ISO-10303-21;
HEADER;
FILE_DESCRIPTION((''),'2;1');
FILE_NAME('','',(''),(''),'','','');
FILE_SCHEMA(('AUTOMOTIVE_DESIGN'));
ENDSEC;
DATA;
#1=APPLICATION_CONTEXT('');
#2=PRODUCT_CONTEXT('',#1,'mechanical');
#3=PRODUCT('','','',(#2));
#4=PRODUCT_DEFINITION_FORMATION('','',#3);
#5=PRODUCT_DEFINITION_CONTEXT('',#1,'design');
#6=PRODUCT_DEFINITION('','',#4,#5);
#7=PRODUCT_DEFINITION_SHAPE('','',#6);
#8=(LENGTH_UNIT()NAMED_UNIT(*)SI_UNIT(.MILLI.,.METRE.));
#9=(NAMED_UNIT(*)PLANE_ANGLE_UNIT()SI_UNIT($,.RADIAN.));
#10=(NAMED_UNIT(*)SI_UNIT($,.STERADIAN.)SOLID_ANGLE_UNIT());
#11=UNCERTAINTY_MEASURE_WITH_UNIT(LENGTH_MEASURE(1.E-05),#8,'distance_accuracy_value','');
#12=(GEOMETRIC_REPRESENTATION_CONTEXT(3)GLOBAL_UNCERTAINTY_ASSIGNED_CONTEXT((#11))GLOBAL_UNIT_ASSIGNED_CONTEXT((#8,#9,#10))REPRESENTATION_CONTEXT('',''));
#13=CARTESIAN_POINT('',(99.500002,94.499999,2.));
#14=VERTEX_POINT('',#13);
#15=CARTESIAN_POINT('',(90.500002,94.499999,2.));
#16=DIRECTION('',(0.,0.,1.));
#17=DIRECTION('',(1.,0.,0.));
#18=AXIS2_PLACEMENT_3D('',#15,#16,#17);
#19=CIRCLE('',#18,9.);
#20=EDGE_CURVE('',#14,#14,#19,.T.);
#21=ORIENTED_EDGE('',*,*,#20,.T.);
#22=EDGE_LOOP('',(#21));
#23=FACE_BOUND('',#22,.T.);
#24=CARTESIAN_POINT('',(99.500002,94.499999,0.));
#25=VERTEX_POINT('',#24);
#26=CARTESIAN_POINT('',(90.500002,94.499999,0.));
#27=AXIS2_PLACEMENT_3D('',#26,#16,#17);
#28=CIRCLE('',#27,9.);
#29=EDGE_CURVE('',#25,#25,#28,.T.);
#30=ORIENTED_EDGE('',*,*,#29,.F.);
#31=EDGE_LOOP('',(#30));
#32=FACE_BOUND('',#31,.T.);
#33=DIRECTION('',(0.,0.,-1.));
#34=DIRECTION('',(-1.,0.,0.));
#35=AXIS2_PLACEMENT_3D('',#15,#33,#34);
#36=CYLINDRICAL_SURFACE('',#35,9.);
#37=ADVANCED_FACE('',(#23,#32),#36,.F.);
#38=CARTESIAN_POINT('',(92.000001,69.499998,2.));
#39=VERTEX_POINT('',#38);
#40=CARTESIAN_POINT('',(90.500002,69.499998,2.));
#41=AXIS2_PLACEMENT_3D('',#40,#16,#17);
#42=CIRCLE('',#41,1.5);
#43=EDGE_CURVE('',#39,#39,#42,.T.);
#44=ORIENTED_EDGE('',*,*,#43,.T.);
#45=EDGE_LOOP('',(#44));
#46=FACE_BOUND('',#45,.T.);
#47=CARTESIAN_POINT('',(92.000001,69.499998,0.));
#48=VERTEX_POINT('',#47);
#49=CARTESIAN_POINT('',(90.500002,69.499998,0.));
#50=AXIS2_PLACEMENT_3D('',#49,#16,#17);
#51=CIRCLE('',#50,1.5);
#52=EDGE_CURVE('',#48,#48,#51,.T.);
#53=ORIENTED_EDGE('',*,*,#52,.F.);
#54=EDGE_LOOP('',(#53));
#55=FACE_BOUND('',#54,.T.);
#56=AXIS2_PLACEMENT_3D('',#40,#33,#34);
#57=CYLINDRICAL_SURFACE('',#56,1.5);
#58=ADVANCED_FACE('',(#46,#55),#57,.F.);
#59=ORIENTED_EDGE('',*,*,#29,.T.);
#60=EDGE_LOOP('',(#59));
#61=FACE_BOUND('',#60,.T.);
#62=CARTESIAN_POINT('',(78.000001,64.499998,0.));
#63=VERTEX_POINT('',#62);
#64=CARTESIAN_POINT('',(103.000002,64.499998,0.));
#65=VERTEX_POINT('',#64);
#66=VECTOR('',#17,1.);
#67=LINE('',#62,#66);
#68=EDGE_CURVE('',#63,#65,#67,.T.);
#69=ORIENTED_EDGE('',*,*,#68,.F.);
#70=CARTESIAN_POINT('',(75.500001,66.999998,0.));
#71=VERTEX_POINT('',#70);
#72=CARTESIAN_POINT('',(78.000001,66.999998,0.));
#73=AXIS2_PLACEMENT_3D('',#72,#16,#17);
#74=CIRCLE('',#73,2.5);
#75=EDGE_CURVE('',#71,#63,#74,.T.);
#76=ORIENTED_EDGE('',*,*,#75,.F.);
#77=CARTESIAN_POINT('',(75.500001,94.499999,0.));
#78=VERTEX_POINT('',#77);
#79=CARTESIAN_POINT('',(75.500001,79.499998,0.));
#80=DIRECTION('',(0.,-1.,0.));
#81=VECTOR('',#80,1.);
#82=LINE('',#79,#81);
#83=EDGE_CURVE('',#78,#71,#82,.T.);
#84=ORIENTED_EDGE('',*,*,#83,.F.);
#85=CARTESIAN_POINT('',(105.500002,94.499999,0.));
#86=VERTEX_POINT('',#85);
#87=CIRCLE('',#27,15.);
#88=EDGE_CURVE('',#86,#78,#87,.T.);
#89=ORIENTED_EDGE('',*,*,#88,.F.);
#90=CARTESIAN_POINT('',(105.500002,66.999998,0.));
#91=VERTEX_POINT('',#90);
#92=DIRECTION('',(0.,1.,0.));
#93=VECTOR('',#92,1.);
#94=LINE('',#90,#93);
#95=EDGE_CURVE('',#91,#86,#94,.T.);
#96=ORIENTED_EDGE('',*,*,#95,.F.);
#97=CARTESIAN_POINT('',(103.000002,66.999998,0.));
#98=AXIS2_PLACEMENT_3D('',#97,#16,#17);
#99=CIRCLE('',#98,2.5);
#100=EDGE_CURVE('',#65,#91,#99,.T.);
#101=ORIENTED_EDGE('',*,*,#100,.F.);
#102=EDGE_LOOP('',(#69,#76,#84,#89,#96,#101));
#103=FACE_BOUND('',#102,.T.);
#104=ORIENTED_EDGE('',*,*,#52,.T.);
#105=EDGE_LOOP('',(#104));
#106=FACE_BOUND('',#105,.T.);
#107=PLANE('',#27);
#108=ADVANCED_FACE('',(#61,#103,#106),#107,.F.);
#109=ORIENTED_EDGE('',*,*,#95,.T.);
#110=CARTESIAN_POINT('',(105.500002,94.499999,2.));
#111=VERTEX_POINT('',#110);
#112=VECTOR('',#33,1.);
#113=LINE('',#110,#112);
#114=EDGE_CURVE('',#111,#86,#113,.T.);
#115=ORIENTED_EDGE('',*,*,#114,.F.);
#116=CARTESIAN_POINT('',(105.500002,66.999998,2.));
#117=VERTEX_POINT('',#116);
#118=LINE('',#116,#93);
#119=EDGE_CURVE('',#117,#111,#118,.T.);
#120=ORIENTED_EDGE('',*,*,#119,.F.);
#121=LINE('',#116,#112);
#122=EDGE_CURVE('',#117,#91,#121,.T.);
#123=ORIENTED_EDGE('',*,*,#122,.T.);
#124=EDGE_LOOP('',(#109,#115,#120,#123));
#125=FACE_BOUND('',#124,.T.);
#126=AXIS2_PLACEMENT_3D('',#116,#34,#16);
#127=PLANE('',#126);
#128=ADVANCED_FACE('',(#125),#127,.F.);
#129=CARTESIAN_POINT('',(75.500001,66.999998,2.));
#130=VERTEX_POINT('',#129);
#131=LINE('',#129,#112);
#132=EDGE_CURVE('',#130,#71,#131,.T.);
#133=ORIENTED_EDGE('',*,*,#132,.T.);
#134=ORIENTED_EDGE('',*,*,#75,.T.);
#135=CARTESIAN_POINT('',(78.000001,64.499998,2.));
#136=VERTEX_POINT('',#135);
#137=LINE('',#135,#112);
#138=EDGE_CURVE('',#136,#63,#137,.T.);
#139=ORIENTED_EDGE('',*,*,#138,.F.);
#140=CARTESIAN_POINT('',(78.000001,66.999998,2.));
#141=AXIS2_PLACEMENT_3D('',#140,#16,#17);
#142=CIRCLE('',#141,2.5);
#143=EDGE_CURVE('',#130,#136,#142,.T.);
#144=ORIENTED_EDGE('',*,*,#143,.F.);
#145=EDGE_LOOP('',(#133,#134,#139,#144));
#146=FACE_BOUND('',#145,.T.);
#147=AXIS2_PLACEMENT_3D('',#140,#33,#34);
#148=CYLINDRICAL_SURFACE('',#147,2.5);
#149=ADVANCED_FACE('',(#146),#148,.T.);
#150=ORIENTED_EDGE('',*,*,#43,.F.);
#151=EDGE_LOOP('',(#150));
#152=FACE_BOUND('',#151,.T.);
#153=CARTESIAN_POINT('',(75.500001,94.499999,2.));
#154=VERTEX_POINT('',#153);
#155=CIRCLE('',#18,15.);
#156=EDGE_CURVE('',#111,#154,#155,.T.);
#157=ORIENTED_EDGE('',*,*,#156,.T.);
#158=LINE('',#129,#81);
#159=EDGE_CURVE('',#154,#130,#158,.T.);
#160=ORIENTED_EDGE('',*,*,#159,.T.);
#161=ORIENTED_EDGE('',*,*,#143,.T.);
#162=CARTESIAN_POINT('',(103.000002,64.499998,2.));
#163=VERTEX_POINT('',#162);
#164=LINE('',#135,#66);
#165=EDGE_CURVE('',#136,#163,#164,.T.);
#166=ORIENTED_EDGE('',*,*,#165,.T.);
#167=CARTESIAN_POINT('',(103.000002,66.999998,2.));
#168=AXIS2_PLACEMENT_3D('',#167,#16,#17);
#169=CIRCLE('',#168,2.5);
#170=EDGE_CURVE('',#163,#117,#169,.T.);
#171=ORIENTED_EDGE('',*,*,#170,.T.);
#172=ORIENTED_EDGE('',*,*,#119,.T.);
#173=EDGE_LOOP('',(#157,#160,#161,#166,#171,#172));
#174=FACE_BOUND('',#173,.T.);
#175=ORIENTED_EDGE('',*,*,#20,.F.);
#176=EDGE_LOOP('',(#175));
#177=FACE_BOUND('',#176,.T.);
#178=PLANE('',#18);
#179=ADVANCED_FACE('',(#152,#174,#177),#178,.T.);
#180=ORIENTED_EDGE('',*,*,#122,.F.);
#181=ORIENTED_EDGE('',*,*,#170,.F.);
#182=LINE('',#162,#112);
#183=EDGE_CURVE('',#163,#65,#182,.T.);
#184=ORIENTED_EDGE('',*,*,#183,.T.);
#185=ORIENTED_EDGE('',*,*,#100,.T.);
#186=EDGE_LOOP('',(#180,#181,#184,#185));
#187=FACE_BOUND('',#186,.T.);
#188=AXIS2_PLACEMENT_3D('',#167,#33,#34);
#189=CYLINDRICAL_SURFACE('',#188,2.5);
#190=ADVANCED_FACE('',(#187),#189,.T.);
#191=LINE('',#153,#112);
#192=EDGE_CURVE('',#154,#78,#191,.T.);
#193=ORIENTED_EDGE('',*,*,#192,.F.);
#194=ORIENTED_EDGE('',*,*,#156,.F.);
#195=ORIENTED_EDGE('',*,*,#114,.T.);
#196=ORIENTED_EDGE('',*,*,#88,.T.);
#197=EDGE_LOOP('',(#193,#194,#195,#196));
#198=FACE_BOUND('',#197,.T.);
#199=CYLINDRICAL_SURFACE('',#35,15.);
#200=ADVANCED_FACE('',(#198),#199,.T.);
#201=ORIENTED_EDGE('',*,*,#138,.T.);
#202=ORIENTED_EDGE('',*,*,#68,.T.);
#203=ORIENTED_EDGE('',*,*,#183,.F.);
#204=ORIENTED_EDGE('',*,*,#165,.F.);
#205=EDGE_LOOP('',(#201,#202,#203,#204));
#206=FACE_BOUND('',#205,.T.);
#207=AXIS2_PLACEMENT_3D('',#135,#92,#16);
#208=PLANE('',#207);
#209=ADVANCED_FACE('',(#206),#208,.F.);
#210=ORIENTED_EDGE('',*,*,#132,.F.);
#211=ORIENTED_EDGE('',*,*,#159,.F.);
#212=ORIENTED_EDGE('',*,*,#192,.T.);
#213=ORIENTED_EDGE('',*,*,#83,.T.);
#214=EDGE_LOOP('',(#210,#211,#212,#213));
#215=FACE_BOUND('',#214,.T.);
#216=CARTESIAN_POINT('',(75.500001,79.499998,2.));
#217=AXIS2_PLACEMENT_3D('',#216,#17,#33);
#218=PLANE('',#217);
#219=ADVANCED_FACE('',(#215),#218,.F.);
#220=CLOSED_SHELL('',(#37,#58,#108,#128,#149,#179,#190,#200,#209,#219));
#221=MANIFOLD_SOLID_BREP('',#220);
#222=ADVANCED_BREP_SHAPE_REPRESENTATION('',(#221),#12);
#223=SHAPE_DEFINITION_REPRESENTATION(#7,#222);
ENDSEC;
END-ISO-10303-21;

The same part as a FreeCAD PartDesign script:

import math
import FreeCAD as App
import Part
import Sketcher

V = App.Vector

doc = App.newDocument("Part")
body = doc.addObject("PartDesign::Body", "Body")

# Sketch on XY plane
sketch1 = doc.addObject("Sketcher::SketchObject", "Sketch")
body.addObject(sketch1)
sketch1.AttachmentSupport = (doc.XY_Plane, [""])
sketch1.MapMode = "FlatFace"
sketch1.addGeometry(Part.ArcOfCircle(Part.Circle(V(90.5, 94.5, 0), V(0, 0, 1), 15), math.radians(0), math.radians(180)), False)
sketch1.addGeometry(Part.LineSegment(V(75.5, 94.5, 0), V(75.5, 67, 0)), False)
sketch1.addGeometry(Part.ArcOfCircle(Part.Circle(V(78, 67, 0), V(0, 0, 1), 2.5), math.radians(180), math.radians(270)), False)
sketch1.addGeometry(Part.LineSegment(V(78, 64.5, 0), V(103, 64.5, 0)), False)
sketch1.addGeometry(Part.ArcOfCircle(Part.Circle(V(103, 67, 0), V(0, 0, 1), 2.5), math.radians(-90), math.radians(0)), False)
sketch1.addGeometry(Part.LineSegment(V(105.5, 67, 0), V(105.5, 94.5, 0)), False)
sketch1.addGeometry(Part.Circle(V(90.5, 69.5, 0), V(0, 0, 1), 1.5), False)
sketch1.addGeometry(Part.Circle(V(90.5, 94.5, 0), V(0, 0, 1), 9), False)
sketch1.addConstraint(Sketcher.Constraint("Tangent", 0, 2, 1, 1))
sketch1.addConstraint(Sketcher.Constraint("Tangent", 1, 2, 2, 1))
sketch1.addConstraint(Sketcher.Constraint("Tangent", 2, 2, 3, 1))
sketch1.addConstraint(Sketcher.Constraint("Tangent", 3, 2, 4, 1))
sketch1.addConstraint(Sketcher.Constraint("Tangent", 4, 2, 5, 1))
sketch1.addConstraint(Sketcher.Constraint("Tangent", 5, 2, 0, 1))
sketch1.addConstraint(Sketcher.Constraint("Vertical", 1))
sketch1.addConstraint(Sketcher.Constraint("Horizontal", 3))
sketch1.addConstraint(Sketcher.Constraint("Vertical", 5))
sketch1.addConstraint(Sketcher.Constraint("Coincident", 7, 3, 0, 3))
sketch1.addConstraint(Sketcher.Constraint("Equal", 2, 4))
sketch1.addConstraint(Sketcher.Constraint("Vertical", 0, 3, 6, 3))
sketch1.addConstraint(Sketcher.Constraint("Diameter", 6, 2.999999))
sketch1.addConstraint(Sketcher.Constraint("Diameter", 7, 18.0))
sketch1.addConstraint(Sketcher.Constraint("Radius", 0, 15.0))
sketch1.addConstraint(Sketcher.Constraint("Radius", 2, 2.5))
sketch1.addConstraint(Sketcher.Constraint("DistanceY", 1, 2, 1, 1, 27.500001))
sketch1.addConstraint(Sketcher.Constraint("DistanceX", -1, 1, 2, 3, 78.000001))
sketch1.addConstraint(Sketcher.Constraint("DistanceY", -1, 1, 2, 3, 66.999998))
sketch1.addConstraint(Sketcher.Constraint("DistanceY", 6, 3, 0, 3, 25.000001))
pad1 = doc.addObject("PartDesign::Pad", "Pad")
body.addObject(pad1)
pad1.Profile = sketch1
pad1.Length = 2

doc.recompute()
